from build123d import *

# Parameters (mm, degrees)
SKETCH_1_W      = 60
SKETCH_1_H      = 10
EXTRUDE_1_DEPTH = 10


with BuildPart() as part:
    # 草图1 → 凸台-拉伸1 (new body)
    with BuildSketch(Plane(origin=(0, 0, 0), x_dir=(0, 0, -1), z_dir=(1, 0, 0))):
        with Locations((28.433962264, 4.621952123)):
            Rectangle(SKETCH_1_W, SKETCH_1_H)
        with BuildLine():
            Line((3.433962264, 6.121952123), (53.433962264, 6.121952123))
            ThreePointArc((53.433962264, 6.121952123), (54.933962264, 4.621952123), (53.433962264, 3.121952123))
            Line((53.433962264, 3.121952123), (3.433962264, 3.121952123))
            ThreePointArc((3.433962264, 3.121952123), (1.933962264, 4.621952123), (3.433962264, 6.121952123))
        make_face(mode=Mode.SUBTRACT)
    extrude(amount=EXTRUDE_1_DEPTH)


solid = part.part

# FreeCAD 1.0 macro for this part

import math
import FreeCAD as App
import Part
import Sketcher
Q = App.Units.Quantity

doc = App.newDocument("Part")
body = doc.addObject("PartDesign::Body", "Body")

# Sketch on YZ plane
sketch1 = body.newObject("Sketcher::SketchObject", "Sketch")
sketch1.AttachmentSupport = (doc.getObject("YZ_Plane"), [""])
sketch1.MapMode = "FlatFace"
sketch1.addGeometry([
    Part.LineSegment(App.Vector(9.6, 1.6, 0), App.Vector(-0.4, 1.6, 0)),  # 0
    Part.LineSegment(App.Vector(-0.4, 1.6, 0), App.Vector(-0.4, -58.4, 0)),  # 1
    Part.LineSegment(App.Vector(-0.4, -58.4, 0), App.Vector(9.6, -58.4, 0)),  # 2
    Part.LineSegment(App.Vector(9.6, -58.4, 0), App.Vector(9.6, 1.6, 0)),  # 3
    Part.ArcOfCircle(Part.Circle(App.Vector(4.6, -3.4, 0), App.Vector(0, 0, 1), 1.5), math.radians(0), math.radians(180)),  # 4
    Part.LineSegment(App.Vector(6.1, -3.4, 0), App.Vector(6.1, -53.4, 0)),  # 5
    Part.ArcOfCircle(Part.Circle(App.Vector(4.6, -53.4, 0), App.Vector(0, 0, 1), 1.5), math.radians(180), math.radians(360)),  # 6
    Part.LineSegment(App.Vector(3.1, -53.4, 0), App.Vector(3.1, -3.4, 0)),  # 7
], False)
sketch1.addConstraint([
    Sketcher.Constraint("Coincident", 0, 2, 1, 1),
    Sketcher.Constraint("Coincident", 1, 2, 2, 1),
    Sketcher.Constraint("Coincident", 2, 2, 3, 1),
    Sketcher.Constraint("Coincident", 3, 2, 0, 1),
    Sketcher.Constraint("Tangent", 4, 1, 5, 1),
    Sketcher.Constraint("Tangent", 5, 2, 6, 2),
    Sketcher.Constraint("Tangent", 6, 1, 7, 1),
    Sketcher.Constraint("Tangent", 7, 2, 4, 2),
    Sketcher.Constraint("Horizontal", 0),
    Sketcher.Constraint("Vertical", 1),
    Sketcher.Constraint("Horizontal", 2),
    Sketcher.Constraint("Vertical", 3),
    Sketcher.Constraint("Vertical", 5),
    Sketcher.Constraint("Vertical", 7),
    Sketcher.Constraint("Radius", 4, Q("1.5 mm")),
    Sketcher.Constraint("DistanceX", 0, 2, 0, 1, Q("10 mm")),
    Sketcher.Constraint("DistanceY", 1, 2, 1, 1, Q("60 mm")),
    Sketcher.Constraint("DistanceY", 5, 2, 5, 1, Q("50 mm")),
    Sketcher.Constraint("DistanceX", 0, 2, 4, 3, Q("5 mm")),
    Sketcher.Constraint("DistanceY", 4, 3, 0, 2, Q("5 mm")),
    Sketcher.Constraint("DistanceX", -1, 1, 4, 3, Q("4.621952 mm")),
    Sketcher.Constraint("DistanceY", 4, 3, -1, 1, Q("3.433962 mm")),
])
pad1 = body.newObject("PartDesign::Pad", "Pad")
pad1.Profile = sketch1
pad1.Length = 10

doc.recompute()
